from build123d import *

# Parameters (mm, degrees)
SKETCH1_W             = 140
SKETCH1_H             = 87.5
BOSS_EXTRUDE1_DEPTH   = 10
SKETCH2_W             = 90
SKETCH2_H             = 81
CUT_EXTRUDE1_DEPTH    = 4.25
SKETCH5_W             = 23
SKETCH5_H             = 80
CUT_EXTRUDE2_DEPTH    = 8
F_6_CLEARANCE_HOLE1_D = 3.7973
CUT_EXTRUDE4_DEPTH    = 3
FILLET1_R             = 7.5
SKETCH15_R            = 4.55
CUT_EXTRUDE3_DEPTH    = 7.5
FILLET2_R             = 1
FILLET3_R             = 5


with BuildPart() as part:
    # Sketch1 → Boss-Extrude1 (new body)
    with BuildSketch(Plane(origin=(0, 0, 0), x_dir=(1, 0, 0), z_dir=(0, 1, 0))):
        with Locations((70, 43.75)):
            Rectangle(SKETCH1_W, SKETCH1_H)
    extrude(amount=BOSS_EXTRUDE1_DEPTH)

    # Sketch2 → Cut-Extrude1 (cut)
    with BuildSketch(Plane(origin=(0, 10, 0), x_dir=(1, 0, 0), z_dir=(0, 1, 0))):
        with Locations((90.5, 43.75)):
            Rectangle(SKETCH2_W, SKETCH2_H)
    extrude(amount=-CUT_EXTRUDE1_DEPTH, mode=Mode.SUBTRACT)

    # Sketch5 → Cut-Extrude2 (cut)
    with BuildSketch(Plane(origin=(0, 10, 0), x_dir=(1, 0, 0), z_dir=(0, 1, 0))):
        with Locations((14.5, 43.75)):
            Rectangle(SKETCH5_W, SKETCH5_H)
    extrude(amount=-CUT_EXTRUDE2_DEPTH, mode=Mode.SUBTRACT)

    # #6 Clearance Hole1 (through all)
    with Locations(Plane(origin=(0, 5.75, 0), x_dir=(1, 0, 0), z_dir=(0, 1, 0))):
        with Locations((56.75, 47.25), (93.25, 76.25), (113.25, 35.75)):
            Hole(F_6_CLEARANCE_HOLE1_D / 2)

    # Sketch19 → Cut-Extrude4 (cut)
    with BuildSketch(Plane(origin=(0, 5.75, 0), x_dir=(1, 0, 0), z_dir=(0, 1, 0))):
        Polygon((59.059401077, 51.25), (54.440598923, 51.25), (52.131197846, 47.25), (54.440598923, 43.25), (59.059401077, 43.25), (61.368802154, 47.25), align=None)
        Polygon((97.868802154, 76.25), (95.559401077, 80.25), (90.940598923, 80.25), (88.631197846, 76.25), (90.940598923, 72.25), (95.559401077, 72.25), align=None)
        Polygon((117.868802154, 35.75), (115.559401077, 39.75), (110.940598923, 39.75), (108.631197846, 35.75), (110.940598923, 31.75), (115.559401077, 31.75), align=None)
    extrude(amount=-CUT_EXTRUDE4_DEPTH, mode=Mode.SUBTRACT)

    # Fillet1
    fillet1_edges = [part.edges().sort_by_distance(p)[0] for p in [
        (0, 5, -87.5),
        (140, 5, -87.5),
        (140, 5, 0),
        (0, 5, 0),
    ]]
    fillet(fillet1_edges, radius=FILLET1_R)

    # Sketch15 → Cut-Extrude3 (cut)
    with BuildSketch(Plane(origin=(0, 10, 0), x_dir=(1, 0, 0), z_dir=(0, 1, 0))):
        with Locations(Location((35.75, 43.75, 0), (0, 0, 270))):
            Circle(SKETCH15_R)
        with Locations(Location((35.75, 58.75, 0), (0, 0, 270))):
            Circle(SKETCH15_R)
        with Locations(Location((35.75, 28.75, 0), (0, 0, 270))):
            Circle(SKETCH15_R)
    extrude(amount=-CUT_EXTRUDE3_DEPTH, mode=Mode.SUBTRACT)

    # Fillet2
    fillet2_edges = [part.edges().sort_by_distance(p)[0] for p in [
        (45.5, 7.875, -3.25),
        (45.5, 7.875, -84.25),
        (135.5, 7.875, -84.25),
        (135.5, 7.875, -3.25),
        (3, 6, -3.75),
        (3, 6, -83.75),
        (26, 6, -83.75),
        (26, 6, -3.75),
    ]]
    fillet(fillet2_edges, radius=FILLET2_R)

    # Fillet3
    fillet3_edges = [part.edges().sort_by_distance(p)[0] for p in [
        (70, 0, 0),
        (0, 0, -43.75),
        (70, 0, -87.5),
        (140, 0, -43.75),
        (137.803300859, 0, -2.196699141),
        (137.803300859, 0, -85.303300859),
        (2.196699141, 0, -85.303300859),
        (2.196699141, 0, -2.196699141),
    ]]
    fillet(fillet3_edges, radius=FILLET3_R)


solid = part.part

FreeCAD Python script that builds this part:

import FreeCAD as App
import Part
import Sketcher

V = App.Vector
Q = App.Units.Quantity


def edges_at(feature, points):
    """Names of the edges that pass closest to the given points."""
    edges = feature.Shape.Edges
    near = lambda p: min(range(len(edges)), key=lambda i: edges[i].distToShape(Part.Vertex(*p))[0])
    return sorted({f"Edge{near(p) + 1}" for p in points})

doc = App.newDocument("Part")
body = doc.addObject("PartDesign::Body", "Body")

sketch1 = body.newObject("Sketcher::SketchObject", "Sketch")
sketch1.AttachmentSupport = (doc.getObject("XZ_Plane"), [""])
sketch1.MapMode = "FlatFace"
sketch1.addGeometry([
    Part.LineSegment(V(0, -87.5, 0), V(0, 0, 0)),
    Part.LineSegment(V(0, 0, 0), V(140, 0, 0)),
    Part.LineSegment(V(140, 0, 0), V(140, -87.5, 0)),
    Part.LineSegment(V(140, -87.5, 0), V(0, -87.5, 0)),
], False)
sketch1.addConstraint([
    Sketcher.Constraint("Coincident", 0, 2, 1, 1),
    Sketcher.Constraint("Coincident", 1, 2, 2, 1),
    Sketcher.Constraint("Coincident", 2, 2, 3, 1),
    Sketcher.Constraint("Coincident", 3, 2, 0, 1),
    Sketcher.Constraint("Vertical", 0),
    Sketcher.Constraint("Horizontal", 1),
    Sketcher.Constraint("Vertical", 2),
    Sketcher.Constraint("Horizontal", 3),
    Sketcher.Constraint("Coincident", 0, 2, -1, 1),
    Sketcher.Constraint("DistanceX", 1, 1, 1, 2, 140.0),
    Sketcher.Constraint("DistanceY", 0, 1, 0, 2, 87.5),
])
pad1 = body.newObject("PartDesign::Pad", "Pad")
pad1.Profile = sketch1
pad1.Length = 10
pad1.Reversed = True

sketch2 = body.newObject("Sketcher::SketchObject", "Sketch001")
sketch2.AttachmentSupport = (doc.getObject("XZ_Plane"), [""])
sketch2.MapMode = "FlatFace"
sketch2.AttachmentOffset = App.Placement(V(0, 0, -10), App.Rotation())
sketch2.addGeometry([
    Part.LineSegment(V(45.5, -84.25, 0), V(45.5, -3.25, 0)),
    Part.LineSegment(V(45.5, -3.25, 0), V(135.5, -3.25, 0)),
    Part.LineSegment(V(135.5, -3.25, 0), V(135.5, -84.25, 0)),
    Part.LineSegment(V(135.5, -84.25, 0), V(45.5, -84.25, 0)),
], False)
sketch2.addConstraint([
    Sketcher.Constraint("Coincident", 0, 2, 1, 1),
    Sketcher.Constraint("Coincident", 1, 2, 2, 1),
    Sketcher.Constraint("Coincident", 2, 2, 3, 1),
    Sketcher.Constraint("Coincident", 3, 2, 0, 1),
    Sketcher.Constraint("Vertical", 0),
    Sketcher.Constraint("Horizontal", 1),
    Sketcher.Constraint("Vertical", 2),
    Sketcher.Constraint("Horizontal", 3),
    Sketcher.Constraint("DistanceX", 1, 1, 1, 2, 90.0),
    Sketcher.Constraint("DistanceY", 0, 1, 0, 2, 81.0),
    Sketcher.Constraint("DistanceX", -1, 1, 0, 2, 45.5),
    Sketcher.Constraint("DistanceY", 0, 2, -1, 1, 3.25),
])
pocket1 = body.newObject("PartDesign::Pocket", "Pocket")
pocket1.Profile = sketch2
pocket1.Length = 4.25
pocket1.Reversed = True

sketch3 = body.newObject("Sketcher::SketchObject", "Sketch002")
sketch3.AttachmentSupport = (doc.getObject("XZ_Plane"), [""])
sketch3.MapMode = "FlatFace"
sketch3.AttachmentOffset = App.Placement(V(0, 0, -10), App.Rotation())
sketch3.addGeometry([
    Part.LineSegment(V(3, -83.75, 0), V(3, -3.75, 0)),
    Part.LineSegment(V(3, -3.75, 0), V(26, -3.75, 0)),
    Part.LineSegment(V(26, -3.75, 0), V(26, -83.75, 0)),
    Part.LineSegment(V(26, -83.75, 0), V(3, -83.75, 0)),
], False)
sketch3.addConstraint([
    Sketcher.Constraint("Coincident", 0, 2, 1, 1),
    Sketcher.Constraint("Coincident", 1, 2, 2, 1),
    Sketcher.Constraint("Coincident", 2, 2, 3, 1),
    Sketcher.Constraint("Coincident", 3, 2, 0, 1),
    Sketcher.Constraint("Vertical", 0),
    Sketcher.Constraint("Horizontal", 1),
    Sketcher.Constraint("Vertical", 2),
    Sketcher.Constraint("Horizontal", 3),
    Sketcher.Constraint("DistanceX", 1, 1, 1, 2, 23.0),
    Sketcher.Constraint("DistanceY", 0, 1, 0, 2, 80.0),
    Sketcher.Constraint("DistanceX", -1, 1, 0, 2, 3.0),
    Sketcher.Constraint("DistanceY", 0, 2, -1, 1, 3.75),
])
pocket2 = body.newObject("PartDesign::Pocket", "Pocket001")
pocket2.Profile = sketch3
pocket2.Length = 8
pocket2.Reversed = True

sketch4 = body.newObject("Sketcher::SketchObject", "Sketch003")
sketch4.AttachmentSupport = (doc.getObject("XZ_Plane"), [""])
sketch4.MapMode = "FlatFace"
sketch4.AttachmentOffset = App.Placement(V(0, 0, -5.75), App.Rotation())
sketch4.addGeometry([
    Part.Circle(V(56.75, -47.25, 0), V(0, 0, 1), 1.89865),
    Part.Circle(V(93.25, -76.25, 0), V(0, 0, 1), 1.89865),
    Part.Circle(V(113.25, -35.75, 0), V(0, 0, 1), 1.89865),
], False)
sketch4.addConstraint([
    Sketcher.Constraint("Equal", 0, 1),
    Sketcher.Constraint("Equal", 1, 2),
    Sketcher.Constraint("DistanceY", 1, 3, 0, 3, 29.0),
    Sketcher.Constraint("DistanceX", 1, 3, 2, 3, 20.0),
    Sketcher.Constraint("Diameter", 0, 3.7973),
    Sketcher.Constraint("DistanceX", 0, 3, 1, 3, 36.5),
    Sketcher.Constraint("DistanceY", 1, 3, 2, 3, 40.5),
    Sketcher.Constraint("DistanceX", -1, 1, 0, 3, 56.75),
    Sketcher.Constraint("DistanceY", 0, 3, -1, 1, 47.25),
])
doc.recompute()
hole = body.newObject("PartDesign::Hole", "Hole")
hole.Profile = sketch4
hole.ThreadType = "None"
hole.Diameter = 3.7973
hole.DepthType = "ThroughAll"
hole.Reversed = True

sketch5 = body.newObject("Sketcher::SketchObject", "Sketch004")
sketch5.AttachmentSupport = (doc.getObject("XZ_Plane"), [""])
sketch5.MapMode = "FlatFace"
sketch5.AttachmentOffset = App.Placement(V(0, 0, -5.75), App.Rotation())
sketch5.addGeometry([
    Part.LineSegment(V(59.059401, -51.25, 0), V(54.440599, -51.25, 0)),
    Part.LineSegment(V(54.440599, -51.25, 0), V(52.131198, -47.25, 0)),
    Part.LineSegment(V(52.131198, -47.25, 0), V(54.440599, -43.25, 0)),
    Part.LineSegment(V(54.440599, -43.25, 0), V(59.059401, -43.25, 0)),
    Part.LineSegment(V(59.059401, -43.25, 0), V(61.368802, -47.25, 0)),
    Part.LineSegment(V(61.368802, -47.25, 0), V(59.059401, -51.25, 0)),
    Part.LineSegment(V(97.868802, -76.25, 0), V(95.559401, -80.25, 0)),
    Part.LineSegment(V(95.559401, -80.25, 0), V(90.940599, -80.25, 0)),
    Part.LineSegment(V(90.940599, -80.25, 0), V(88.631198, -76.25, 0)),
    Part.LineSegment(V(88.631198, -76.25, 0), V(90.940599, -72.25, 0)),
    Part.LineSegment(V(90.940599, -72.25, 0), V(95.559401, -72.25, 0)),
    Part.LineSegment(V(95.559401, -72.25, 0), V(97.868802, -76.25, 0)),
    Part.LineSegment(V(117.868802, -35.75, 0), V(115.559401, -39.75, 0)),
    Part.LineSegment(V(115.559401, -39.75, 0), V(110.940599, -39.75, 0)),
    Part.LineSegment(V(110.940599, -39.75, 0), V(108.631198, -35.75, 0)),
    Part.LineSegment(V(108.631198, -35.75, 0), V(110.940599, -31.75, 0)),
    Part.LineSegment(V(110.940599, -31.75, 0), V(115.559401, -31.75, 0)),
    Part.LineSegment(V(115.559401, -31.75, 0), V(117.868802, -35.75, 0)),
], False)
sketch5.addConstraint([
    Sketcher.Constraint("Coincident", 0, 2, 1, 1),
    Sketcher.Constraint("Coincident", 1, 2, 2, 1),
    Sketcher.Constraint("Coincident", 2, 2, 3, 1),
    Sketcher.Constraint("Coincident", 3, 2, 4, 1),
    Sketcher.Constraint("Coincident", 4, 2, 5, 1),
    Sketcher.Constraint("Coincident", 5, 2, 0, 1),
    Sketcher.Constraint("Coincident", 6, 2, 7, 1),
    Sketcher.Constraint("Coincident", 7, 2, 8, 1),
    Sketcher.Constraint("Coincident", 8, 2, 9, 1),
    Sketcher.Constraint("Coincident", 9, 2, 10, 1),
    Sketcher.Constraint("Coincident", 10, 2, 11, 1),
    Sketcher.Constraint("Coincident", 11, 2, 6, 1),
    Sketcher.Constraint("Coincident", 12, 2, 13, 1),
    Sketcher.Constraint("Coincident", 13, 2, 14, 1),
    Sketcher.Constraint("Coincident", 14, 2, 15, 1),
    Sketcher.Constraint("Coincident", 15, 2, 16, 1),
    Sketcher.Constraint("Coincident", 16, 2, 17, 1),
    Sketcher.Constraint("Coincident", 17, 2, 12, 1),
    Sketcher.Constraint("Horizontal", 0),
    Sketcher.Constraint("Horizontal", 3),
    Sketcher.Constraint("Horizontal", 7),
    Sketcher.Constraint("Horizontal", 10),
    Sketcher.Constraint("Horizontal", 13),
    Sketcher.Constraint("Horizontal", 16),
    Sketcher.Constraint("Parallel", 1, 4),
    Sketcher.Constraint("Parallel", 2, 5),
    Sketcher.Constraint("Parallel", 5, 6),
    Sketcher.Constraint("Parallel", 4, 8),
    Sketcher.Constraint("Parallel", 6, 9),
    Sketcher.Constraint("Parallel", 8, 11),
    Sketcher.Constraint("Parallel", 9, 12),
    Sketcher.Constraint("Parallel", 11, 14),
    Sketcher.Constraint("Parallel", 12, 15),
    Sketcher.Constraint("Parallel", 14, 17),
    Sketcher.Constraint("Horizontal", 1, 2, 4, 2),
    Sketcher.Constraint("Horizontal", 8, 2, 11, 2),
    Sketcher.Constraint("Horizontal", 14, 2, 17, 2),
    Sketcher.Constraint("Vertical", 0, 2, 2, 2),
    Sketcher.Constraint("Vertical", 3, 2, 5, 2),
    Sketcher.Constraint("Vertical", 7, 2, 9, 2),
    Sketcher.Constraint("Vertical", 13, 2, 15, 2),
    Sketcher.Constraint("Equal", 3, 7),
    Sketcher.Constraint("Equal", 10, 13),
    Sketcher.Constraint("Equal", 5, 6),
    Sketcher.Constraint("Equal", 11, 12),
    Sketcher.Constraint("Angle", 1, Q("120 deg")),
    Sketcher.Constraint("DistanceY", 0, 2, 1, 2, 4.0),
    Sketcher.Constraint("DistanceY", 6, 2, 5, 2, 29.0),
    Sketcher.Constraint("DistanceX", 10, 2, 12, 2, 20.0),
    Sketcher.Constraint("DistanceX", 5, 2, 6, 2, 36.5),
    Sketcher.Constraint("DistanceY", 10, 2, 12, 2, 32.5),
    Sketcher.Constraint("DistanceY", 0, 2, -1, 1, 51.25),
    Sketcher.Constraint("DistanceX", -1, 1, 0, 2, 54.440599),
    Sketcher.Constraint("DistanceX", -1, 1, 3, 2, 59.059401),
])
pocket3 = body.newObject("PartDesign::Pocket", "Pocket002")
pocket3.Profile = sketch5
pocket3.Length = 3
pocket3.Reversed = True
doc.recompute()

fillet = body.newObject("PartDesign::Fillet", "Fillet")
fillet.Base = (pocket3, edges_at(pocket3, [
    (0, 5, -87.5),
    (140, 5, -87.5),
    (140, 5, 0),
    (0, 5, 0),
]))
fillet.Radius = 7.5

sketch6 = body.newObject("Sketcher::SketchObject", "Sketch005")
sketch6.AttachmentSupport = (doc.getObject("XZ_Plane"), [""])
sketch6.MapMode = "FlatFace"
sketch6.AttachmentOffset = App.Placement(V(0, 0, -10), App.Rotation())
sketch6.addGeometry([
    Part.Circle(V(35.75, -43.75, 0), V(0, 0, 1), 4.55),
    Part.Circle(V(35.75, -58.75, 0), V(0, 0, 1), 4.55),
    Part.Circle(V(35.75, -28.75, 0), V(0, 0, 1), 4.55),
], False)
sketch6.addConstraint([
    Sketcher.Constraint("Equal", 0, 1),
    Sketcher.Constraint("Equal", 1, 2),
    Sketcher.Constraint("Vertical", 0, 3, 1, 3),
    Sketcher.Constraint("Vertical", 1, 3, 2, 3),
    Sketcher.Constraint("Diameter", 0, 9.1),
    Sketcher.Constraint("DistanceY", 1, 3, 0, 3, 15.0),
    Sketcher.Constraint("DistanceY", 0, 3, 2, 3, 15.0),
    Sketcher.Constraint("DistanceX", -1, 1, 0, 3, 35.75),
    Sketcher.Constraint("DistanceY", 0, 3, -1, 1, 43.75),
])
pocket4 = body.newObject("PartDesign::Pocket", "Pocket003")
pocket4.Profile = sketch6
pocket4.Length = 7.5
pocket4.Reversed = True
doc.recompute()

fillet2 = body.newObject("PartDesign::Fillet", "Fillet001")
fillet2.Base = (pocket4, edges_at(pocket4, [
    (45.5, 7.875, -3.25),
    (45.5, 7.875, -84.25),
    (135.5, 7.875, -84.25),
    (135.5, 7.875, -3.25),
    (3, 6, -3.75),
    (3, 6, -83.75),
    (26, 6, -83.75),
    (26, 6, -3.75),
]))
fillet2.Radius = 1
doc.recompute()

fillet3 = body.newObject("PartDesign::Fillet", "Fillet002")
fillet3.Base = (fillet2, edges_at(fillet2, [
    (70, 0, 0),
    (0, 0, -43.75),
    (70, 0, -87.5),
    (140, 0, -43.75),
    (137.803, 0, -2.197),
    (137.803, 0, -85.303),
    (2.197, 0, -85.303),
    (2.197, 0, -2.197),
]))
fillet3.Radius = 5

doc.recompute()
